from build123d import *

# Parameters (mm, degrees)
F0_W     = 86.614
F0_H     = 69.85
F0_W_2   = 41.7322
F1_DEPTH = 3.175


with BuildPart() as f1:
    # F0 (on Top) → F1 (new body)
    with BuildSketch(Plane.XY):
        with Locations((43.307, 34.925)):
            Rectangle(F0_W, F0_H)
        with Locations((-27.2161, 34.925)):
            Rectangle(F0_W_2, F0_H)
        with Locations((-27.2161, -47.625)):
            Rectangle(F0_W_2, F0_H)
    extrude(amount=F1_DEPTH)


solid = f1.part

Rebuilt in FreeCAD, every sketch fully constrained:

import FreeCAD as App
import Part
import Sketcher

V = App.Vector
Q = App.Units.Quantity

doc = App.newDocument("Part")
body = doc.addObject("PartDesign::Body", "Body")
body.AllowCompound = True

sketch1 = body.newObject("Sketcher::SketchObject", "Sketch")
sketch1.AttachmentSupport = (doc.getObject("XY_Plane"), [""])
sketch1.MapMode = "FlatFace"
sketch1.addGeometry([
    Part.LineSegment(V(0, 70, 0), V(0, 0, 0)),
    Part.LineSegment(V(0, 0, 0), V(87, 0, 0)),
    Part.LineSegment(V(87, 0, 0), V(87, 70, 0)),
    Part.LineSegment(V(87, 70, 0), V(0, 70, 0)),
    Part.LineSegment(V(-48, 70, 0), V(-48, 0, 0)),
    Part.LineSegment(V(-48, 0, 0), V(-6, 0, 0)),
    Part.LineSegment(V(-6, 0, 0), V(-6, 70, 0)),
    Part.LineSegment(V(-6, 70, 0), V(-48, 70, 0)),
    Part.LineSegment(V(-48, -13, 0), V(-48, -83, 0)),
    Part.LineSegment(V(-48, -83, 0), V(-6, -83, 0)),
    Part.LineSegment(V(-6, -83, 0), V(-6, -13, 0)),
    Part.LineSegment(V(-6, -13, 0), V(-48, -13, 0)),
], False)
sketch1.addConstraint([
    Sketcher.Constraint("Coincident", 0, 2, 1, 1),
    Sketcher.Constraint("Coincident", 1, 2, 2, 1),
    Sketcher.Constraint("Coincident", 2, 2, 3, 1),
    Sketcher.Constraint("Coincident", 3, 2, 0, 1),
    Sketcher.Constraint("Coincident", 4, 2, 5, 1),
    Sketcher.Constraint("Coincident", 5, 2, 6, 1),
    Sketcher.Constraint("Coincident", 6, 2, 7, 1),
    Sketcher.Constraint("Coincident", 7, 2, 4, 1),
    Sketcher.Constraint("Coincident", 8, 2, 9, 1),
    Sketcher.Constraint("Coincident", 9, 2, 10, 1),
    Sketcher.Constraint("Coincident", 10, 2, 11, 1),
    Sketcher.Constraint("Coincident", 11, 2, 8, 1),
    Sketcher.Constraint("Vertical", 0),
    Sketcher.Constraint("Horizontal", 1),
    Sketcher.Constraint("Vertical", 2),
    Sketcher.Constraint("Horizontal", 3),
    Sketcher.Constraint("Vertical", 4),
    Sketcher.Constraint("Horizontal", 5),
    Sketcher.Constraint("Vertical", 6),
    Sketcher.Constraint("Horizontal", 7),
    Sketcher.Constraint("Vertical", 8),
    Sketcher.Constraint("Horizontal", 9),
    Sketcher.Constraint("Vertical", 10),
    Sketcher.Constraint("Horizontal", 11),
    Sketcher.Constraint("Coincident", 0, 2, -1, 1),
    Sketcher.Constraint("PointOnObject", 4, 2, -1),
    Sketcher.Constraint("Horizontal", 3, 2, 6, 2),
    Sketcher.Constraint("Vertical", 7, 2, 8, 2),
    Sketcher.Constraint("Vertical", 6, 2, 9, 2),
    Sketcher.Constraint("Equal", 6, 8),
    Sketcher.Constraint("DistanceY", 8, 2, 7, 2, Q("6 in")),
    Sketcher.Constraint("DistanceX", 1, 1, 1, 2, Q("3.41 in")),
    Sketcher.Constraint("DistanceY", 0, 2, 0, 1, Q("2.75 in")),
    Sketcher.Constraint("DistanceX", 5, 1, 5, 2, Q("1.643 in")),
    Sketcher.Constraint("DistanceX", 5, 2, -1, 1, Q("0.25 in")),
])
pad1 = body.newObject("PartDesign::Pad", "Pad")
pad1.Profile = sketch1
pad1.Length = Q("0.125 in")

doc.recompute()
